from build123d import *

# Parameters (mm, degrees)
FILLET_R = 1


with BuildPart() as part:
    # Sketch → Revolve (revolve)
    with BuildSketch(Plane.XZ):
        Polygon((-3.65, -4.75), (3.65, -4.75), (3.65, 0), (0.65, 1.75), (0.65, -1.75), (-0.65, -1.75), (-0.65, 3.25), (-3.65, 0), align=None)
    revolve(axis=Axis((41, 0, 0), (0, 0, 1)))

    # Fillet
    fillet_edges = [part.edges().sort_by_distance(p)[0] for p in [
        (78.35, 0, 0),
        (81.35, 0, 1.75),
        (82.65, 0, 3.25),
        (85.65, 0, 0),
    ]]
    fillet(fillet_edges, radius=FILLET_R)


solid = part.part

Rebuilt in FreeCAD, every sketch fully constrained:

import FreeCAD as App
import Part
import Sketcher
from FreeCAD import Vector


def edges_at(feature, points):
    """Names of the edges that pass closest to the given points."""
    edges = feature.Shape.Edges
    near = lambda p: min(range(len(edges)), key=lambda i: edges[i].distToShape(Part.Vertex(*p))[0])
    return sorted({f"Edge{near(p) + 1}" for p in points})

doc = App.newDocument("Part")
body = doc.addObject("PartDesign::Body", "Body")

# Sketch on XZ plane
sketch1 = body.newObject("Sketcher::SketchObject", "Sketch")
sketch1.AttachmentSupport = (doc.getObject("XZ_Plane"), [""])
sketch1.MapMode = "FlatFace"
sketch1.addGeometry([
    Part.LineSegment(Vector(-3.6, -4.8, 0), Vector(3.6, -4.8, 0)),  # 0
    Part.LineSegment(Vector(3.6, -4.8, 0), Vector(3.6, 0, 0)),  # 1
    Part.LineSegment(Vector(3.6, 0, 0), Vector(0.7, 1.8, 0)),  # 2
    Part.LineSegment(Vector(0.7, 1.8, 0), Vector(0.7, -1.8, 0)),  # 3
    Part.LineSegment(Vector(0.7, -1.8, 0), Vector(-0.7, -1.8, 0)),  # 4
    Part.LineSegment(Vector(-0.7, -1.8, 0), Vector(-0.7, 3.2, 0)),  # 5
    Part.LineSegment(Vector(-0.7, 3.2, 0), Vector(-3.6, 0, 0)),  # 6
    Part.LineSegment(Vector(-3.6, 0, 0), Vector(-3.6, -4.8, 0)),  # 7
], False)
sketch1.addGeometry(Part.LineSegment(Vector(41, -4.8, 0), Vector(41, 3.2, 0)), True)  # axis
sketch1.addConstraint([
    Sketcher.Constraint("Coincident", 0, 2, 1, 1),
    Sketcher.Constraint("Coincident", 1, 2, 2, 1),
    Sketcher.Constraint("Coincident", 2, 2, 3, 1),
    Sketcher.Constraint("Coincident", 3, 2, 4, 1),
    Sketcher.Constraint("Coincident", 4, 2, 5, 1),
    Sketcher.Constraint("Coincident", 5, 2, 6, 1),
    Sketcher.Constraint("Coincident", 6, 2, 7, 1),
    Sketcher.Constraint("Coincident", 7, 2, 0, 1),
    Sketcher.Constraint("Horizontal", 0),
    Sketcher.Constraint("Vertical", 1),
    Sketcher.Constraint("Vertical", 3),
    Sketcher.Constraint("Horizontal", 4),
    Sketcher.Constraint("Vertical", 5),
    Sketcher.Constraint("Vertical", 7),
    Sketcher.Constraint("Vertical", 8),
    Sketcher.Constraint("Symmetric", 2, 2, 4, 2, -1, 1),
    Sketcher.Constraint("Symmetric", 1, 2, 6, 2, -1, 1),
    Sketcher.Constraint("PointOnObject", 1, 2, -1),
    Sketcher.Constraint("Horizontal", 7, 2, 8, 1),
    Sketcher.Constraint("Horizontal", 5, 2, 8, 2),
    Sketcher.Constraint("DistanceY", 5, 1, 5, 2, 5.0),
    Sketcher.Constraint("DistanceY", 8, 1, 8, 2, 8.0),
    Sketcher.Constraint("DistanceX", 0, 1, 0, 2, 7.3),
    Sketcher.Constraint("DistanceX", 4, 2, 4, 1, 1.3),
    Sketcher.Constraint("DistanceY", 3, 2, 3, 1, 3.5),
    Sketcher.Constraint("DistanceX", -1, 1, 8, 1, 41.0),
])
revolution = body.newObject("PartDesign::Revolution", "Revolution")
revolution.Profile = sketch1
revolution.ReferenceAxis = (sketch1, ["Axis0"])
revolution.Angle = 360
doc.recompute()

fillet = body.newObject("PartDesign::Fillet", "Fillet")
fillet.Base = (revolution, edges_at(revolution, [
    (78.35, 0, 0),
    (81.35, 0, 1.75),
    (82.65, 0, 3.25),
    (85.65, 0, 0),
]))
fillet.Radius = 1

doc.recompute()
